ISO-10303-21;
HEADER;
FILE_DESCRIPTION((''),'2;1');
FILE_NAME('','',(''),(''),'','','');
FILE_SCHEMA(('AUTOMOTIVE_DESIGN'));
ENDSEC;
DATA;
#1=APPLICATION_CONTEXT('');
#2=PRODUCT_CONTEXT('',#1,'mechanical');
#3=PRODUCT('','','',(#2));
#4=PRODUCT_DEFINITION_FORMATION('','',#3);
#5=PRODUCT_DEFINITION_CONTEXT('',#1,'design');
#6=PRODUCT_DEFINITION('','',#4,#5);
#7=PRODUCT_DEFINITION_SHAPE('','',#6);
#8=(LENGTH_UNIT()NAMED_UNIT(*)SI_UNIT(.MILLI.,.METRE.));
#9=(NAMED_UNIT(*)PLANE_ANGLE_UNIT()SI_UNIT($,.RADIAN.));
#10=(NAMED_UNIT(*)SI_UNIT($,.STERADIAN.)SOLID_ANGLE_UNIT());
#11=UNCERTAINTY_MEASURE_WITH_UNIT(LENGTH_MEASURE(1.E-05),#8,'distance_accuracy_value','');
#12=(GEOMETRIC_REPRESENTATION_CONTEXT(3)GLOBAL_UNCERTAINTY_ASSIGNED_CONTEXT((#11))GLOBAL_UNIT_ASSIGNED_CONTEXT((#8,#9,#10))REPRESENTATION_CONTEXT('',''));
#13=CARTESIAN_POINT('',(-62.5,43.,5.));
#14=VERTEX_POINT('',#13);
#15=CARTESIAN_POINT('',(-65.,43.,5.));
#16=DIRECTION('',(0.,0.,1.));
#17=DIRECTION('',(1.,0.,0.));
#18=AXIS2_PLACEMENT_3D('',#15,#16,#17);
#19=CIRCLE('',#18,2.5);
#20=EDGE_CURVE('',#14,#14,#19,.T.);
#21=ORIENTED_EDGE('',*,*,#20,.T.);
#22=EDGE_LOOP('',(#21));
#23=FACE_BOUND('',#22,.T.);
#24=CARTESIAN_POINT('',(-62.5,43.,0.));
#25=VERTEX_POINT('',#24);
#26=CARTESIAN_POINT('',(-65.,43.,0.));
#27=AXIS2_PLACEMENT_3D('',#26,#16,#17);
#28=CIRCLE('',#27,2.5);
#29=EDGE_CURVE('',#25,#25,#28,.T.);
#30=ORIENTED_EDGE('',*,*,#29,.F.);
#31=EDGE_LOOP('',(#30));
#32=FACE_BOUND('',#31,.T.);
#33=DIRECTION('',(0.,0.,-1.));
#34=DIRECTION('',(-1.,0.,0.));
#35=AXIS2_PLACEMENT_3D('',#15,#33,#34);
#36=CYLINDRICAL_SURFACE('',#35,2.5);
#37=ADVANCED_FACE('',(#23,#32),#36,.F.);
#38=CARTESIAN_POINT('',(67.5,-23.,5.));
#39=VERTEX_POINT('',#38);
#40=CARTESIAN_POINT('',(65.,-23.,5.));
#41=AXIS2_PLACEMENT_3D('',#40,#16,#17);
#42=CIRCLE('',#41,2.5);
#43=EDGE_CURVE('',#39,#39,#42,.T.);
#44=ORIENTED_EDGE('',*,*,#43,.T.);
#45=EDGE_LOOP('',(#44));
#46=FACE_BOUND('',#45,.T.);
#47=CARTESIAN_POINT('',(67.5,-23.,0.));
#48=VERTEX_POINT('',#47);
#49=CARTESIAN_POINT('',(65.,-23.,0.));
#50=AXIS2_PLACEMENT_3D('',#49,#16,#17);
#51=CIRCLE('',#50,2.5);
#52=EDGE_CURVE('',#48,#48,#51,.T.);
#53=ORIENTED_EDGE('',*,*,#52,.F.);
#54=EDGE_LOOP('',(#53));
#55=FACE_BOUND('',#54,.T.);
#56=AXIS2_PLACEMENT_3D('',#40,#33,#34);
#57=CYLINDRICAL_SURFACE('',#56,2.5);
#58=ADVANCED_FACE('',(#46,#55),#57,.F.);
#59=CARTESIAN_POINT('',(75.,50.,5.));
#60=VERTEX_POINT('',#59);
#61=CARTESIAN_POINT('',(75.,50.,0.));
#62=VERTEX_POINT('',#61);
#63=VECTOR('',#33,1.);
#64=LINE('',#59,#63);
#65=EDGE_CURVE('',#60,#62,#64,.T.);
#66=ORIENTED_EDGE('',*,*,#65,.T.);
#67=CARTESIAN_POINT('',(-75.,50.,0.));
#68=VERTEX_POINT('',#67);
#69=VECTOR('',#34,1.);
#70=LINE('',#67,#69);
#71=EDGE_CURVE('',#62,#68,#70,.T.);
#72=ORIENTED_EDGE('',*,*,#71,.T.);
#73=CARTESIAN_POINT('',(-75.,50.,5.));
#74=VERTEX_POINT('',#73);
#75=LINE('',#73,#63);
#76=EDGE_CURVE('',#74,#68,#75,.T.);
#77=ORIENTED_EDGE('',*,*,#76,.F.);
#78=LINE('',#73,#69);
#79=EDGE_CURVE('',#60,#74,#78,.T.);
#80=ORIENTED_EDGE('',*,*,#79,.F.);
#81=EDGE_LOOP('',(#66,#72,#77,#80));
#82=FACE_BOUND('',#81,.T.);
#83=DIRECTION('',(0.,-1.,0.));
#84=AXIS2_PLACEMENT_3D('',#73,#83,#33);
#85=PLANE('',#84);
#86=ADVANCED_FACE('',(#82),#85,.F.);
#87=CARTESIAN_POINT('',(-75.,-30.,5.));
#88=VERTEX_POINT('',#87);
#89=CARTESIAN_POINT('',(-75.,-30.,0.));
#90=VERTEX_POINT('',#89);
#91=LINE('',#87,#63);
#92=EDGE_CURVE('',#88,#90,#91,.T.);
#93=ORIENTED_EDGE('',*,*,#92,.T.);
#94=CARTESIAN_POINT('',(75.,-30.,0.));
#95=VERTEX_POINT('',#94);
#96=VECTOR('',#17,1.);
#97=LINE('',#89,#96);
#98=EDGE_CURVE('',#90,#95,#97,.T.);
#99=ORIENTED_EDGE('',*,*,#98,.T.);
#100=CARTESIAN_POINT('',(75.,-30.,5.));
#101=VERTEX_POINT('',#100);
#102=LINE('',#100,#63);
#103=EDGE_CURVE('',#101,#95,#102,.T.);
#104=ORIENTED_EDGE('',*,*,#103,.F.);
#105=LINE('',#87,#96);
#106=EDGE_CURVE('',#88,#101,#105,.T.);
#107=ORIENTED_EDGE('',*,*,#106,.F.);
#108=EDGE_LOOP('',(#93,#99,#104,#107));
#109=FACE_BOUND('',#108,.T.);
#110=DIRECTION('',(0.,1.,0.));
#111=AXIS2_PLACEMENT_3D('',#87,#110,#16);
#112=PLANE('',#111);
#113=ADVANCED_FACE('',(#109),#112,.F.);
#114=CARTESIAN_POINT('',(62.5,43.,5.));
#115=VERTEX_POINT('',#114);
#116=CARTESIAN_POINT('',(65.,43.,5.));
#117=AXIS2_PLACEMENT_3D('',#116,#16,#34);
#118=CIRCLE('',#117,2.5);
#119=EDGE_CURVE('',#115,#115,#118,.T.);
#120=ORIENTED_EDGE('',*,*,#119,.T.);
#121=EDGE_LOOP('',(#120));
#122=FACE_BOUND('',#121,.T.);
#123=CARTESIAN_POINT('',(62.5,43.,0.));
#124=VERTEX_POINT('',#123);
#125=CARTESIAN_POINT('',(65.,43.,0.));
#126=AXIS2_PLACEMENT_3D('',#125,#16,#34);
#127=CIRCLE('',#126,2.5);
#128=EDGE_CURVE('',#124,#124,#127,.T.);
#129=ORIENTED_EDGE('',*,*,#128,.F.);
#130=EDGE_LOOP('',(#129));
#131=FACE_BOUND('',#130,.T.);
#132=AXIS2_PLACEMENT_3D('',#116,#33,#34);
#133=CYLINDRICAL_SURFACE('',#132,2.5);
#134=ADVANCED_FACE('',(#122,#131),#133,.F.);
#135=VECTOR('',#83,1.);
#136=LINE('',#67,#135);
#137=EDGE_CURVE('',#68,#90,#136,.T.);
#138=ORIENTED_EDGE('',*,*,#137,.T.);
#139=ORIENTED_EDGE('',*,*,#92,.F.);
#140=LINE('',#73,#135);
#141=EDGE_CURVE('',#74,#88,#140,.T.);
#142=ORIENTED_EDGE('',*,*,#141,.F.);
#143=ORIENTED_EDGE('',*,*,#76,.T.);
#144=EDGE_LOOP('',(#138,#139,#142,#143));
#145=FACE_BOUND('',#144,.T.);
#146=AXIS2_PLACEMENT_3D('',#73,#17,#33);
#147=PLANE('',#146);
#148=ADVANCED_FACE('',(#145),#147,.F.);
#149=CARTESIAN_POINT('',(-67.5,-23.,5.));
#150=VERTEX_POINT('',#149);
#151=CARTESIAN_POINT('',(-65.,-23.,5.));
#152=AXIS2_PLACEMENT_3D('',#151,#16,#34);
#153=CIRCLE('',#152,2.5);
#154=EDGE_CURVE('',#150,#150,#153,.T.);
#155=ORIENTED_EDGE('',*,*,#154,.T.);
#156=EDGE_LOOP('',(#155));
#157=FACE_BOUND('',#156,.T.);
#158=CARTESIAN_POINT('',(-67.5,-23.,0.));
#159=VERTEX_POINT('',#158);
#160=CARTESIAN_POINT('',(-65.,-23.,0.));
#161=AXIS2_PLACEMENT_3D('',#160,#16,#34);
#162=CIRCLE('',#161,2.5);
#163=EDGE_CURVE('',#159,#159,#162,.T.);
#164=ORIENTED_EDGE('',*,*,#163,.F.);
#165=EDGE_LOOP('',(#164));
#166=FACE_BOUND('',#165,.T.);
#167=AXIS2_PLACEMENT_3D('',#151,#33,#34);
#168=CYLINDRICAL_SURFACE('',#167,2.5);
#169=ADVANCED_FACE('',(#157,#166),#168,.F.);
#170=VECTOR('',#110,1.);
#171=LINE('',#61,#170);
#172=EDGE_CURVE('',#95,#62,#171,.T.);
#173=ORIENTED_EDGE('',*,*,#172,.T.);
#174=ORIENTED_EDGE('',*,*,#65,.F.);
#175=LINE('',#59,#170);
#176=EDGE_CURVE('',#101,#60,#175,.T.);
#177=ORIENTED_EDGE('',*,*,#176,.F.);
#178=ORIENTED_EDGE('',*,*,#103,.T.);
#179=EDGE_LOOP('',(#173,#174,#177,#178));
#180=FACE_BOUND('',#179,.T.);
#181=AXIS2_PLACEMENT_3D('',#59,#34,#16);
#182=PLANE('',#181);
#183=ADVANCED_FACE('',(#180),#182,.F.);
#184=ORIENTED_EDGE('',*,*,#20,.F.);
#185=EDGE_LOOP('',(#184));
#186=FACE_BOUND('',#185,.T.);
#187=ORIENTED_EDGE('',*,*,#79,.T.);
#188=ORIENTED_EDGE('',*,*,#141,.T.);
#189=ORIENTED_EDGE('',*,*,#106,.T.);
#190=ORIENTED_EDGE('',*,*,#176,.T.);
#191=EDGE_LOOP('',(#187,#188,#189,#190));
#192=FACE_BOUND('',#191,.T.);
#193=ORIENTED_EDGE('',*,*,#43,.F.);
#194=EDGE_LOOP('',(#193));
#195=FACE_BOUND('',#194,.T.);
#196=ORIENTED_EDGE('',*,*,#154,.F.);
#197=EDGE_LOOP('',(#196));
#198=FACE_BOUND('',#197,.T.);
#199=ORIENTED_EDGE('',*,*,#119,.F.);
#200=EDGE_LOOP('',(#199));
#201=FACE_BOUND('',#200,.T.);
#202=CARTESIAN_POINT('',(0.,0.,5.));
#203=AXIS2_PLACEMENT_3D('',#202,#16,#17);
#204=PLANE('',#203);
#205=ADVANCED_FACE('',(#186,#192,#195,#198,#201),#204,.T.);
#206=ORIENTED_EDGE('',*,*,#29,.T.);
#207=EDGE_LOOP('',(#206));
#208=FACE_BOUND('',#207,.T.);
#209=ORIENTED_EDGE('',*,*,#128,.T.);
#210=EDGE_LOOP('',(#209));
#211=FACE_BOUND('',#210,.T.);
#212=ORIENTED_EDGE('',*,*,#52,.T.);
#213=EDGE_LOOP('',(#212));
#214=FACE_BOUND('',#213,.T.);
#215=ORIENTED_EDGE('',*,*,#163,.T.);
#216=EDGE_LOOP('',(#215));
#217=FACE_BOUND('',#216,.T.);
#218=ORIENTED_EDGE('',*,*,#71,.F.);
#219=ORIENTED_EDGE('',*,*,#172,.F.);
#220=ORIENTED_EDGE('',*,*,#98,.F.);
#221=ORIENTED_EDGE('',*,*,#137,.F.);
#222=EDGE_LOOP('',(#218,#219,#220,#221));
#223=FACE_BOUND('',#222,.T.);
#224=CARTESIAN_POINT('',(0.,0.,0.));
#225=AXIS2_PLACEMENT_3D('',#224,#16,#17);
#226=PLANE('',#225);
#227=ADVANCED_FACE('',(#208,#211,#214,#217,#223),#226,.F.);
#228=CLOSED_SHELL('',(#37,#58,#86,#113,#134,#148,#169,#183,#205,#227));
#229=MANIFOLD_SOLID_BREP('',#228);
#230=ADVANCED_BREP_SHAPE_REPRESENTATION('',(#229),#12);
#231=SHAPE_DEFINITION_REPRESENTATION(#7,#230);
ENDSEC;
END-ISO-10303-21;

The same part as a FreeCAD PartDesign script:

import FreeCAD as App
import Part
import Sketcher
from FreeCAD import Vector
Q = App.Units.Quantity


def add_polygon(sketch, points):
    """Adds a closed chain of lines whose ends are joined by coincident constraints."""
    first, n = sketch.GeometryCount, len(points)
    for a, b in zip(points, points[1:] + points[:1]):
        sketch.addGeometry(Part.LineSegment(App.Vector(*a, 0), App.Vector(*b, 0)), False)
    for i in range(n):
        sketch.addConstraint(Sketcher.Constraint("Coincident", first + i, 2, first + (i + 1) % n, 1))

doc = App.newDocument("Part")
params = doc.addObject("Spreadsheet::Sheet", "Params")
for row, (alias, value) in enumerate([
    ("sketch1_diameter", "5 mm"),
    ("sketch1_width", "150 mm"),
    ("sketch1_height", "80 mm"),
    ("pad1_length", "5 mm"),
], start=1):
    params.set(f"A{row}", alias)
    params.set(f"B{row}", "=" + value)
    params.setAlias(f"B{row}", alias)

body = doc.addObject("PartDesign::Body", "Body")

# Sketch on XY plane
sketch1 = doc.addObject("Sketcher::SketchObject", "Sketch")
body.addObject(sketch1)
sketch1.AttachmentSupport = (doc.XY_Plane, [""])
sketch1.MapMode = "FlatFace"
add_polygon(sketch1, [(-75, 50), (-75, -30), (75, -30), (75, 50)])  # lines 0-3
sketch1.addGeometry(Part.Circle(Vector(-65, -23, 0), Vector(0, 0, 1), 2.5), False)  # 4
sketch1.addGeometry(Part.Circle(Vector(65, -23, 0), Vector(0, 0, 1), 2.5), False)  # 5
sketch1.addGeometry(Part.Circle(Vector(-65, 43, 0), Vector(0, 0, 1), 2.5), False)  # 6
sketch1.addGeometry(Part.Circle(Vector(65, 43, 0), Vector(0, 0, 1), 2.5), False)  # 7
sketch1.addConstraint(Sketcher.Constraint("Vertical", 0))
sketch1.addConstraint(Sketcher.Constraint("Horizontal", 1))
sketch1.addConstraint(Sketcher.Constraint("Vertical", 2))
sketch1.addConstraint(Sketcher.Constraint("Horizontal", 3))
sketch1.addConstraint(Sketcher.Constraint("Equal", 4, 5))
sketch1.addConstraint(Sketcher.Constraint("Equal", 5, 6))
sketch1.addConstraint(Sketcher.Constraint("Equal", 6, 7))
sketch1.addConstraint(Sketcher.Constraint("Symmetric", 4, 3, 5, 3, -2))
sketch1.addConstraint(Sketcher.Constraint("Symmetric", 6, 3, 7, 3, -2))
sketch1.addConstraint(Sketcher.Constraint("Vertical", 4, 3, 6, 3))
sketch1.addConstraint(Sketcher.Constraint("Diameter", 4, Q("5 mm")))
sketch1.addConstraint(Sketcher.Constraint("DistanceX", 1, 1, 1, 2, Q("150 mm")))
sketch1.addConstraint(Sketcher.Constraint("DistanceY", 0, 2, 0, 1, Q("80 mm")))
sketch1.addConstraint(Sketcher.Constraint("DistanceX", 4, 3, -1, 1, Q("65 mm")))
sketch1.addConstraint(Sketcher.Constraint("DistanceY", 4, 3, -1, 1, Q("23 mm")))
sketch1.addConstraint(Sketcher.Constraint("DistanceY", -1, 1, 6, 3, Q("43 mm")))
sketch1.addConstraint(Sketcher.Constraint("DistanceX", 0, 2, -1, 1, Q("75 mm")))
sketch1.addConstraint(Sketcher.Constraint("DistanceY", 0, 2, -1, 1, Q("30 mm")))
sketch1.setExpression("Constraints[14]", "Params.sketch1_diameter")
sketch1.setExpression("Constraints[15]", "Params.sketch1_width")
sketch1.setExpression("Constraints[16]", "Params.sketch1_height")
pad1 = doc.addObject("PartDesign::Pad", "Pad")
body.addObject(pad1)
pad1.Profile = sketch1
pad1.setExpression("Length", "Params.pad1_length")

doc.recompute()
